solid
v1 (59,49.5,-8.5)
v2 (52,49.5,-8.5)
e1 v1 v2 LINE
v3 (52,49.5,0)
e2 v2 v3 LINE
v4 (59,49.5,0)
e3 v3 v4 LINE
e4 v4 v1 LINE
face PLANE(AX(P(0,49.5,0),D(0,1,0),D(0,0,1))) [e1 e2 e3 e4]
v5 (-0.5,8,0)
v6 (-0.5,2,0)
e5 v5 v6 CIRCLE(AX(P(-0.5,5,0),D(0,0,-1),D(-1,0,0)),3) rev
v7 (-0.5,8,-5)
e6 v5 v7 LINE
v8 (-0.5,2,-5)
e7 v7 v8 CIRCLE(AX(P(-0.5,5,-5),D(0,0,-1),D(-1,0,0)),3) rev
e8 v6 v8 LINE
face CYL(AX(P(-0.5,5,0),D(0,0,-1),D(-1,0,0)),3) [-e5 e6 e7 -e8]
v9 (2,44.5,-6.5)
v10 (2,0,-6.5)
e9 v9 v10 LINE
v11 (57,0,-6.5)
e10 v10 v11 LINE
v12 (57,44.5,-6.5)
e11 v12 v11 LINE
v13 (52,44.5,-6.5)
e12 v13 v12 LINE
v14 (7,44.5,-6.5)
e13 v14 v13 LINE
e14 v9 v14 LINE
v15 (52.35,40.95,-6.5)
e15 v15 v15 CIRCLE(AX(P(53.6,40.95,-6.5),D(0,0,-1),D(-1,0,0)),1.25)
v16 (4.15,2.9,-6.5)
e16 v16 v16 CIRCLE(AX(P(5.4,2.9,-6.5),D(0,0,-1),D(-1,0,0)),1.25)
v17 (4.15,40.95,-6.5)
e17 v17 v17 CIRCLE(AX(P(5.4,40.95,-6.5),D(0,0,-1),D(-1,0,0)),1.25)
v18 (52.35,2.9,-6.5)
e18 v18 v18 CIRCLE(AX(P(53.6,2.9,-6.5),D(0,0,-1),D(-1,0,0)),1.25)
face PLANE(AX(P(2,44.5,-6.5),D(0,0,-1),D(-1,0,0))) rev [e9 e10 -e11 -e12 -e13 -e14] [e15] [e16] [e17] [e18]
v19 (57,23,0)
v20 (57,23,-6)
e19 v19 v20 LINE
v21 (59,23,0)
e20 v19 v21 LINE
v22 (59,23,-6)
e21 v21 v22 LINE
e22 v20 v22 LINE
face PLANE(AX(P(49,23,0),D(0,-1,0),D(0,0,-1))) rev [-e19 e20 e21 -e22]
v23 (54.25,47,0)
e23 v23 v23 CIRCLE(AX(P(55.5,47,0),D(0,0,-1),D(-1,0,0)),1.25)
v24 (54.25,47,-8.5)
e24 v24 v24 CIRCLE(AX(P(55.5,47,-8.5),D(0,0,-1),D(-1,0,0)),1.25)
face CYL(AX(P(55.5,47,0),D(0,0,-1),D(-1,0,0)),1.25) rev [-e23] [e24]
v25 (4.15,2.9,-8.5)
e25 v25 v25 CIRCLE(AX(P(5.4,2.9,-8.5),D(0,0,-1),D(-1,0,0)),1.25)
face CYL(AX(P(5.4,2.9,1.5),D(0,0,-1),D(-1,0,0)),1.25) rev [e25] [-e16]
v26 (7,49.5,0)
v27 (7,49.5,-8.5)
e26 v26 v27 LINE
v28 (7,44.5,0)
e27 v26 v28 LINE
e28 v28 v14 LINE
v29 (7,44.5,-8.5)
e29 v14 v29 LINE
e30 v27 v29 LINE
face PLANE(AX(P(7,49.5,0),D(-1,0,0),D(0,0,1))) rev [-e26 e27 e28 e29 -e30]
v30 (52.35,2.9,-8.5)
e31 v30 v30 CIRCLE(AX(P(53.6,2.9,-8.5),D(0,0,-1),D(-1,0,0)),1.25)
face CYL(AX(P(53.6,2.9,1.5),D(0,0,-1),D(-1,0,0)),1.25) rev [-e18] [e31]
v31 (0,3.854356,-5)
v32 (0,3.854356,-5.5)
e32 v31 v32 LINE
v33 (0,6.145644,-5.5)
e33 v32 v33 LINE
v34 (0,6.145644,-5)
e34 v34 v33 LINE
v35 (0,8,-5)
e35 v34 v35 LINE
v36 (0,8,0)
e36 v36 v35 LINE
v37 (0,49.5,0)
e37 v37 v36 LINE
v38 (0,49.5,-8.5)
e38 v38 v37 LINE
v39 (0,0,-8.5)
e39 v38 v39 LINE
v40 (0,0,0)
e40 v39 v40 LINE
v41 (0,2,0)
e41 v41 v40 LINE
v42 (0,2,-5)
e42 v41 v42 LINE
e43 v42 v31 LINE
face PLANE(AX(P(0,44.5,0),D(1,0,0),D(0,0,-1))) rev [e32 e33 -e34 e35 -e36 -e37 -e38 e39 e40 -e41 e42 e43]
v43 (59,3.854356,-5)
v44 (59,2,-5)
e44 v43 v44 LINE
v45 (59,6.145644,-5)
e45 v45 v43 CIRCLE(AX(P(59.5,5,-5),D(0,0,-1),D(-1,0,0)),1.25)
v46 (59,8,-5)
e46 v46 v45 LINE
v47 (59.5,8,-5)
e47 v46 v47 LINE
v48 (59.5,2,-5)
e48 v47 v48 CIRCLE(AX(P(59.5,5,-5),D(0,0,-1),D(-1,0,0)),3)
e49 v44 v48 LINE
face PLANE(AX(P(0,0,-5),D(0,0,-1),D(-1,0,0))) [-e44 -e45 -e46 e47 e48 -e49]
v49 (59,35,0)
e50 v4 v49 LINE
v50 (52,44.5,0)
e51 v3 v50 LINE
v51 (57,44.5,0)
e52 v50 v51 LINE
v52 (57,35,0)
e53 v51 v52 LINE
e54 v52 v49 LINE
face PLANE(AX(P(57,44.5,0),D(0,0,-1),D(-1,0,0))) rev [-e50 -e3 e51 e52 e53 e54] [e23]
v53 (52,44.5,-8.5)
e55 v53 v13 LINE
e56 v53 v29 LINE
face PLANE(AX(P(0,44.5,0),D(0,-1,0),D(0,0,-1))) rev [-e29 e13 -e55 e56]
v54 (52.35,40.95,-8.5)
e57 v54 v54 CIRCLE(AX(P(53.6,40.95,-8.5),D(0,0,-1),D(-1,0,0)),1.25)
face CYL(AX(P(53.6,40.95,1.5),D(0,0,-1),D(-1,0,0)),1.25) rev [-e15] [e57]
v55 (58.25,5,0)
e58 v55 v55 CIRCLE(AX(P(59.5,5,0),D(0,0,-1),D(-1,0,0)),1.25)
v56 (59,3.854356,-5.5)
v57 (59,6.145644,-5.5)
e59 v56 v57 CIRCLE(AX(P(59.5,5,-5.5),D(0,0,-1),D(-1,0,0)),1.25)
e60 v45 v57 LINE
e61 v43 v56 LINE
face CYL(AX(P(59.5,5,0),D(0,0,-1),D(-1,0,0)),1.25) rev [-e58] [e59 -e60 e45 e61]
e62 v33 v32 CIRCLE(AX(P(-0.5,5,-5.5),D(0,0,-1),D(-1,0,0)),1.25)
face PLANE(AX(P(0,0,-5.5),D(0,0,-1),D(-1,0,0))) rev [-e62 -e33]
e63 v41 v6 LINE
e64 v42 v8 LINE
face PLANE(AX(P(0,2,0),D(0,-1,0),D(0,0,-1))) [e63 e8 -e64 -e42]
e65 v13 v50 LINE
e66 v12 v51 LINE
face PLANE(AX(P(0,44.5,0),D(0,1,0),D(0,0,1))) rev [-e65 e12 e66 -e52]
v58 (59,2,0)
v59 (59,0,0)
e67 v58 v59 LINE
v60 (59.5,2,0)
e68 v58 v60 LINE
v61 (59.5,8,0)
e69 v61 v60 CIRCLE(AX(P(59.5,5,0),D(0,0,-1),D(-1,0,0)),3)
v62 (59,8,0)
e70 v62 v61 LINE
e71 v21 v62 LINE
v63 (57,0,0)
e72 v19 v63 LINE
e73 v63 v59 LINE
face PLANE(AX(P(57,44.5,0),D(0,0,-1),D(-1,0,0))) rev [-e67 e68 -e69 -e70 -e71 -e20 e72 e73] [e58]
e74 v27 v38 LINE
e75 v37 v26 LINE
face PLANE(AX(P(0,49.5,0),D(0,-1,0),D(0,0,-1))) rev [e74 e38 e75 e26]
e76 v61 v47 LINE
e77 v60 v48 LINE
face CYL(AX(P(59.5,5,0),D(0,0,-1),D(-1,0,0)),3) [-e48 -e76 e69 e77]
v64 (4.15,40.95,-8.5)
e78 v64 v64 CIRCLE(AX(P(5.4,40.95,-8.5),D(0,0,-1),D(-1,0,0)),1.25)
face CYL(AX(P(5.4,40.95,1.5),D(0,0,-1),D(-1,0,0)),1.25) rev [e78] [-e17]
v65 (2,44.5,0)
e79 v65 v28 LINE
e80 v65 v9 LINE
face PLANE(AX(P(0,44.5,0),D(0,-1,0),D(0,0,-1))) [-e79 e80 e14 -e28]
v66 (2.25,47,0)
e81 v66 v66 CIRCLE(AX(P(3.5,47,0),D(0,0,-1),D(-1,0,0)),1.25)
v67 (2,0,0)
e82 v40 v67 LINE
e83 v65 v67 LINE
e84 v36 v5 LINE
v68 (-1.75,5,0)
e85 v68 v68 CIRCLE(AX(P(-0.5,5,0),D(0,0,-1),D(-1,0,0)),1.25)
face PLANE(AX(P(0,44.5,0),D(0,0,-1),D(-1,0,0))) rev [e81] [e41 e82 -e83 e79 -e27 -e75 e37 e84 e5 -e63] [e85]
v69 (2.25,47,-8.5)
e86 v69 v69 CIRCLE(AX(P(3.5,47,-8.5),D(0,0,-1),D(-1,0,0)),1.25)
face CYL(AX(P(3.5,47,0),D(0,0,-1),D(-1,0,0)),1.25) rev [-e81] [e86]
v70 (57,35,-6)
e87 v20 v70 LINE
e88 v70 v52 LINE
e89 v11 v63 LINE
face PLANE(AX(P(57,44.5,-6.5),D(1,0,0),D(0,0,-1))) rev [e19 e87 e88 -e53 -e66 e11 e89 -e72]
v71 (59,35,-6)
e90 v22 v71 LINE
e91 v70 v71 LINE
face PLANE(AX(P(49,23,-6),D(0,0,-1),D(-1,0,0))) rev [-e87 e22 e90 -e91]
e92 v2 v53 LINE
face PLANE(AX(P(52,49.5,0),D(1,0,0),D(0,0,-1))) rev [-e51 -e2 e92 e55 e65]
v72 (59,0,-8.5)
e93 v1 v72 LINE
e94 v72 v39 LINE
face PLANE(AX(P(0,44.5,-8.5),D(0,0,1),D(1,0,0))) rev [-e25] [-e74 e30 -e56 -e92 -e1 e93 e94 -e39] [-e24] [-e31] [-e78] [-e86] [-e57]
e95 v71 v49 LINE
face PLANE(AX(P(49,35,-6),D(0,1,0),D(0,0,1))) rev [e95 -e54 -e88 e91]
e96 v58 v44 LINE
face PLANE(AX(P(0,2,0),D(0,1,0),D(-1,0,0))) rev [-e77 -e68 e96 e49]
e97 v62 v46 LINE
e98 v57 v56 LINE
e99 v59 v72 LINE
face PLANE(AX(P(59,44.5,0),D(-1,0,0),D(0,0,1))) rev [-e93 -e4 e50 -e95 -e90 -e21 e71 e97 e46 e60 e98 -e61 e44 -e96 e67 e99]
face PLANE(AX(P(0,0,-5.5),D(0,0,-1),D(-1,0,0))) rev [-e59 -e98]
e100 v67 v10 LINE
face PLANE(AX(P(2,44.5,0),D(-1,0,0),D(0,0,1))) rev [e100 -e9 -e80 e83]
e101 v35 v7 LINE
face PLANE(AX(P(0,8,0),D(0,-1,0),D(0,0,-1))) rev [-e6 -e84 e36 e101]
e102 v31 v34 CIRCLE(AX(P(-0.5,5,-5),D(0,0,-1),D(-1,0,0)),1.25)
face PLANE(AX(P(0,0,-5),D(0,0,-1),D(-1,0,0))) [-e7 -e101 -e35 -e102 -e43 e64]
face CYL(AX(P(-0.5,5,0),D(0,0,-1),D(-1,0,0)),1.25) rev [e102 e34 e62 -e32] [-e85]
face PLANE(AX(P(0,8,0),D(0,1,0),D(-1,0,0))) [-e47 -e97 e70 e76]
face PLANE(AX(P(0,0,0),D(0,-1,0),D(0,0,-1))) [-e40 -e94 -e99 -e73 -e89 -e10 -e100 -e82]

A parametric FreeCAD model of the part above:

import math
import FreeCAD as App
import Part
import Sketcher
Q = App.Units.Quantity

doc = App.newDocument("Part")
body = doc.addObject("PartDesign::Body", "Body")

sketch1 = doc.addObject("Sketcher::SketchObject", "Sketch")
body.addObject(sketch1)
sketch1.AttachmentSupport = (doc.XZ_Plane, [""])
sketch1.MapMode = "FlatFace"
sketch1.addGeometry(Part.LineSegment(App.Vector(0, 0, 0), App.Vector(2, 0, 0)), False)
sketch1.addGeometry(Part.LineSegment(App.Vector(2, 0, 0), App.Vector(2, -6.5, 0)), False)
sketch1.addGeometry(Part.LineSegment(App.Vector(2, -6.5, 0), App.Vector(57, -6.5, 0)), False)
sketch1.addGeometry(Part.LineSegment(App.Vector(57, -6.5, 0), App.Vector(57, 0, 0)), False)
sketch1.addGeometry(Part.LineSegment(App.Vector(57, 0, 0), App.Vector(59, 0, 0)), False)
sketch1.addGeometry(Part.LineSegment(App.Vector(59, 0, 0), App.Vector(59, -8.5, 0)), False)
sketch1.addGeometry(Part.LineSegment(App.Vector(59, -8.5, 0), App.Vector(0, -8.5, 0)), False)
sketch1.addGeometry(Part.LineSegment(App.Vector(0, -8.5, 0), App.Vector(0, 0, 0)), False)
sketch1.addConstraint(Sketcher.Constraint("Coincident", 0, 2, 1, 1))
sketch1.addConstraint(Sketcher.Constraint("Coincident", 1, 2, 2, 1))
sketch1.addConstraint(Sketcher.Constraint("Coincident", 2, 2, 3, 1))
sketch1.addConstraint(Sketcher.Constraint("Coincident", 3, 2, 4, 1))
sketch1.addConstraint(Sketcher.Constraint("Coincident", 4, 2, 5, 1))
sketch1.addConstraint(Sketcher.Constraint("Coincident", 5, 2, 6, 1))
sketch1.addConstraint(Sketcher.Constraint("Coincident", 6, 2, 7, 1))
sketch1.addConstraint(Sketcher.Constraint("Coincident", 7, 2, 0, 1))
sketch1.addConstraint(Sketcher.Constraint("Horizontal", 0))
sketch1.addConstraint(Sketcher.Constraint("Vertical", 1))
sketch1.addConstraint(Sketcher.Constraint("Horizontal", 2))
sketch1.addConstraint(Sketcher.Constraint("Vertical", 3))
sketch1.addConstraint(Sketcher.Constraint("Horizontal", 4))
sketch1.addConstraint(Sketcher.Constraint("Vertical", 5))
sketch1.addConstraint(Sketcher.Constraint("Horizontal", 6))
sketch1.addConstraint(Sketcher.Constraint("Vertical", 7))
sketch1.addConstraint(Sketcher.Constraint("Coincident", 7, 2, -1, 1))
sketch1.addConstraint(Sketcher.Constraint("PointOnObject", 3, 2, -1))
sketch1.addConstraint(Sketcher.Constraint("Equal", 0, 4))
sketch1.addConstraint(Sketcher.Constraint("DistanceX", 0, 1, 0, 2, Q("2 mm")))
sketch1.addConstraint(Sketcher.Constraint("DistanceX", 2, 1, 2, 2, Q("55 mm")))
sketch1.addConstraint(Sketcher.Constraint("DistanceY", 1, 2, 1, 1, Q("6.5 mm")))
sketch1.addConstraint(Sketcher.Constraint("DistanceY", 5, 2, 5, 1, Q("8.5 mm")))
pad1 = doc.addObject("PartDesign::Pad", "Pad")
body.addObject(pad1)
pad1.Profile = sketch1
pad1.Length = 44.5
pad1.Reversed = True

sketch2 = doc.addObject("Sketcher::SketchObject", "Sketch001")
body.addObject(sketch2)
sketch2.AttachmentSupport = (doc.YZ_Plane, [""])
sketch2.MapMode = "FlatFace"
sketch2.AttachmentOffset = App.Placement(App.Vector(0, 0, 59), App.Rotation())
sketch2.addGeometry(Part.LineSegment(App.Vector(35, 0, 0), App.Vector(23, 0, 0)), False)
sketch2.addGeometry(Part.LineSegment(App.Vector(23, 0, 0), App.Vector(23, -6, 0)), False)
sketch2.addGeometry(Part.LineSegment(App.Vector(23, -6, 0), App.Vector(35, -6, 0)), False)
sketch2.addGeometry(Part.LineSegment(App.Vector(35, -6, 0), App.Vector(35, 0, 0)), False)
sketch2.addConstraint(Sketcher.Constraint("Coincident", 0, 2, 1, 1))
sketch2.addConstraint(Sketcher.Constraint("Coincident", 1, 2, 2, 1))
sketch2.addConstraint(Sketcher.Constraint("Coincident", 2, 2, 3, 1))
sketch2.addConstraint(Sketcher.Constraint("Coincident", 3, 2, 0, 1))
sketch2.addConstraint(Sketcher.Constraint("Horizontal", 0))
sketch2.addConstraint(Sketcher.Constraint("Vertical", 1))
sketch2.addConstraint(Sketcher.Constraint("Horizontal", 2))
sketch2.addConstraint(Sketcher.Constraint("Vertical", 3))
sketch2.addConstraint(Sketcher.Constraint("PointOnObject", 0, 2, -1))
sketch2.addConstraint(Sketcher.Constraint("DistanceX", 0, 2, 0, 1, Q("12 mm")))
sketch2.addConstraint(Sketcher.Constraint("DistanceY", 1, 2, 1, 1, Q("6 mm")))
sketch2.addConstraint(Sketcher.Constraint("DistanceX", -1, 1, 0, 2, Q("23 mm")))
pocket1 = doc.addObject("PartDesign::Pocket", "Pocket")
body.addObject(pocket1)
pocket1.Profile = sketch2
pocket1.Length = 10

sketch3 = doc.addObject("Sketcher::SketchObject", "Sketch002")
body.addObject(sketch3)
sketch3.AttachmentSupport = (doc.XY_Plane, [""])
sketch3.MapMode = "FlatFace"
sketch3.AttachmentOffset = App.Placement(App.Vector(0, 0, -8.5), App.Rotation())
sketch3.addGeometry(Part.LineSegment(App.Vector(59, 6.1, 0), App.Vector(59, 8, 0)), False)
sketch3.addGeometry(Part.LineSegment(App.Vector(59, 8, 0), App.Vector(59.5, 8, 0)), False)
sketch3.addGeometry(Part.ArcOfCircle(Part.Circle(App.Vector(59.5, 5, 0), App.Vector(0, 0, 1), 3), math.radians(-90), math.radians(90)), False)
sketch3.addGeometry(Part.LineSegment(App.Vector(59.5, 2, 0), App.Vector(59, 2, 0)), False)
sketch3.addGeometry(Part.LineSegment(App.Vector(59, 2, 0), App.Vector(59, 3.9, 0)), False)
sketch3.addGeometry(Part.ArcOfCircle(Part.Circle(App.Vector(59.5, 5, 0), App.Vector(0, 0, 1), 1.2), math.radians(-114), math.radians(114)), False)
sketch3.addGeometry(Part.LineSegment(App.Vector(-0.5, 8, 0), App.Vector(0, 8, 0)), False)
sketch3.addGeometry(Part.LineSegment(App.Vector(0, 8, 0), App.Vector(0, 6.1, 0)), False)
sketch3.addGeometry(Part.ArcOfCircle(Part.Circle(App.Vector(-0.5, 5, 0), App.Vector(0, 0, 1), 1.2), math.radians(66), math.radians(180)), False)
sketch3.addGeometry(Part.ArcOfCircle(Part.Circle(App.Vector(-0.5, 5, 0), App.Vector(0, 0, 1), 1.2), math.radians(180), math.radians(294)), False)
sketch3.addGeometry(Part.LineSegment(App.Vector(0, 3.9, 0), App.Vector(0, 2, 0)), False)
sketch3.addGeometry(Part.LineSegment(App.Vector(0, 2, 0), App.Vector(-0.5, 2, 0)), False)
sketch3.addGeometry(Part.ArcOfCircle(Part.Circle(App.Vector(-0.5, 5, 0), App.Vector(0, 0, 1), 3), math.radians(90), math.radians(270)), False)
sketch3.addConstraint(Sketcher.Constraint("Coincident", 0, 2, 1, 1))
sketch3.addConstraint(Sketcher.Constraint("Tangent", 1, 2, 2, 2))
sketch3.addConstraint(Sketcher.Constraint("Tangent", 2, 1, 3, 1))
sketch3.addConstraint(Sketcher.Constraint("Coincident", 3, 2, 4, 1))
sketch3.addConstraint(Sketcher.Constraint("Coincident", 4, 2, 5, 1))
sketch3.addConstraint(Sketcher.Constraint("Coincident", 5, 2, 0, 1))
sketch3.addConstraint(Sketcher.Constraint("Coincident", 6, 2, 7, 1))
sketch3.addConstraint(Sketcher.Constraint("Coincident", 7, 2, 8, 1))
sketch3.addConstraint(Sketcher.Constraint("Tangent", 8, 2, 9, 1))
sketch3.addConstraint(Sketcher.Constraint("Coincident", 9, 2, 10, 1))
sketch3.addConstraint(Sketcher.Constraint("Coincident", 10, 2, 11, 1))
sketch3.addConstraint(Sketcher.Constraint("Tangent", 11, 2, 12, 2))
sketch3.addConstraint(Sketcher.Constraint("Tangent", 12, 1, 6, 1))
sketch3.addConstraint(Sketcher.Constraint("Vertical", 0))
sketch3.addConstraint(Sketcher.Constraint("Horizontal", 1))
sketch3.addConstraint(Sketcher.Constraint("Horizontal", 3))
sketch3.addConstraint(Sketcher.Constraint("Vertical", 4))
sketch3.addConstraint(Sketcher.Constraint("Horizontal", 6))
sketch3.addConstraint(Sketcher.Constraint("Vertical", 7))
sketch3.addConstraint(Sketcher.Constraint("Vertical", 10))
sketch3.addConstraint(Sketcher.Constraint("Horizontal", 11))
sketch3.addConstraint(Sketcher.Constraint("Coincident", 5, 3, 2, 3))
sketch3.addConstraint(Sketcher.Constraint("Coincident", 12, 3, 8, 3))
sketch3.addConstraint(Sketcher.Constraint("Equal", 5, 8))
sketch3.addConstraint(Sketcher.Constraint("Equal", 8, 9))
sketch3.addConstraint(Sketcher.Constraint("Equal", 2, 12))
sketch3.addConstraint(Sketcher.Constraint("PointOnObject", 6, 2, -2))
sketch3.addConstraint(Sketcher.Constraint("PointOnObject", 9, 2, -2))
sketch3.addConstraint(Sketcher.Constraint("Horizontal", 5, 3, 8, 3))
sketch3.addConstraint(Sketcher.Constraint("Horizontal", 5, 2, 7, 2))
sketch3.addConstraint(Sketcher.Constraint("Horizontal", 12, 3, 8, 2))
sketch3.addConstraint(Sketcher.Constraint("Horizontal", 4, 2, 9, 2))
sketch3.addConstraint(Sketcher.Constraint("Radius", 2, Q("3 mm")))
sketch3.addConstraint(Sketcher.Constraint("Radius", 5, Q("1.25 mm")))
sketch3.addConstraint(Sketcher.Constraint("DistanceX", 1, 1, 1, 2, Q("0.5 mm")))
sketch3.addConstraint(Sketcher.Constraint("DistanceY", -1, 1, 2, 3, Q("5 mm")))
sketch3.addConstraint(Sketcher.Constraint("DistanceX", -1, 1, 0, 2, Q("59 mm")))
pad2 = doc.addObject("PartDesign::Pad", "Pad001")
body.addObject(pad2)
pad2.Profile = sketch3
pad2.Length = 8.5

sketch4 = doc.addObject("Sketcher::SketchObject", "Sketch003")
body.addObject(sketch4)
sketch4.AttachmentSupport = (doc.XY_Plane, [""])
sketch4.MapMode = "FlatFace"
sketch4.AttachmentOffset = App.Placement(App.Vector(0, 0, -8.5), App.Rotation())
sketch4.addGeometry(Part.ArcOfCircle(Part.Circle(App.Vector(59.5, 5, 0), App.Vector(0, 0, 1), 1.3), math.radians(114), math.radians(180)), False)
sketch4.addGeometry(Part.LineSegment(App.Vector(59, 6.1, 0), App.Vector(59, 3.9, 0)), False)
sketch4.addGeometry(Part.ArcOfCircle(Part.Circle(App.Vector(59.5, 5, 0), App.Vector(0, 0, 1), 1.3), math.radians(180), math.radians(246)), False)
sketch4.addGeometry(Part.LineSegment(App.Vector(59, 3.9, 0), App.Vector(59, 6.1, 0)), False)
sketch4.addGeometry(Part.ArcOfCircle(Part.Circle(App.Vector(59.5, 5, 0), App.Vector(0, 0, 1), 1.2), math.radians(-114), math.radians(114)), False)
sketch4.addGeometry(Part.ArcOfCircle(Part.Circle(App.Vector(-0.5, 5, 0), App.Vector(0, 0, 1), 1.2), math.radians(66), math.radians(180)), False)
sketch4.addGeometry(Part.LineSegment(App.Vector(0, 6.1, 0), App.Vector(0, 3.9, 0)), False)
sketch4.addGeometry(Part.ArcOfCircle(Part.Circle(App.Vector(-0.5, 5, 0), App.Vector(0, 0, 1), 1.2), math.radians(180), math.radians(294)), False)
sketch4.addGeometry(Part.LineSegment(App.Vector(0, 3.9, 0), App.Vector(0, 6.1, 0)), False)
sketch4.addGeometry(Part.ArcOfCircle(Part.Circle(App.Vector(-0.5, 5, 0), App.Vector(0, 0, 1), 1.2), math.radians(-66), math.radians(66)), False)
sketch4.addConstraint(Sketcher.Constraint("Coincident", 0, 1, 1, 1))
sketch4.addConstraint(Sketcher.Constraint("Coincident", 1, 2, 2, 2))
sketch4.addConstraint(Sketcher.Constraint("Tangent", 2, 1, 0, 2))
sketch4.addConstraint(Sketcher.Constraint("Coincident", 3, 1, 4, 1))
sketch4.addConstraint(Sketcher.Constraint("Coincident", 4, 2, 3, 2))
sketch4.addConstraint(Sketcher.Constraint("Coincident", 5, 1, 6, 1))
sketch4.addConstraint(Sketcher.Constraint("Coincident", 6, 2, 7, 2))
sketch4.addConstraint(Sketcher.Constraint("Tangent", 7, 1, 5, 2))
sketch4.addConstraint(Sketcher.Constraint("Coincident", 8, 1, 9, 1))
sketch4.addConstraint(Sketcher.Constraint("Coincident", 9, 2, 8, 2))
sketch4.addConstraint(Sketcher.Constraint("Vertical", 1))
sketch4.addConstraint(Sketcher.Constraint("Vertical", 3))
sketch4.addConstraint(Sketcher.Constraint("Vertical", 6))
sketch4.addConstraint(Sketcher.Constraint("Vertical", 8))
sketch4.addConstraint(Sketcher.Constraint("Coincident", 4, 3, 0, 3))
sketch4.addConstraint(Sketcher.Constraint("Coincident", 9, 3, 5, 3))
sketch4.addConstraint(Sketcher.Constraint("Coincident", 3, 1, 1, 2))
sketch4.addConstraint(Sketcher.Constraint("Coincident", 8, 1, 6, 2))
sketch4.addConstraint(Sketcher.Constraint("Equal", 0, 2))
sketch4.addConstraint(Sketcher.Constraint("Equal", 4, 5))
sketch4.addConstraint(Sketcher.Constraint("Equal", 5, 7))
sketch4.addConstraint(Sketcher.Constraint("PointOnObject", 5, 1, -2))
sketch4.addConstraint(Sketcher.Constraint("Horizontal", 4, 3, 5, 3))
sketch4.addConstraint(Sketcher.Constraint("Horizontal", 9, 3, 2, 1))
sketch4.addConstraint(Sketcher.Constraint("Horizontal", 4, 2, 5, 1))
sketch4.addConstraint(Sketcher.Constraint("Horizontal", 2, 1, 7, 1))
sketch4.addConstraint(Sketcher.Constraint("Radius", 0, Q("1.25 mm")))
sketch4.addConstraint(Sketcher.Constraint("DistanceY", -1, 1, 0, 3, Q("5 mm")))
sketch4.addConstraint(Sketcher.Constraint("DistanceX", -1, 1, 0, 1, Q("59 mm")))
sketch4.addConstraint(Sketcher.Constraint("DistanceX", 5, 3, 4, 3, Q("60 mm")))
pocket2 = doc.addObject("PartDesign::Pocket", "Pocket001")
body.addObject(pocket2)
pocket2.Profile = sketch4
pocket2.Length = 11
pocket2.Reversed = True

sketch5 = doc.addObject("Sketcher::SketchObject", "Sketch004")
body.addObject(sketch5)
sketch5.AttachmentSupport = (doc.XZ_Plane, [""])
sketch5.MapMode = "FlatFace"
sketch5.AttachmentOffset = App.Placement(App.Vector(0, 0, -44.5), App.Rotation())
sketch5.addGeometry(Part.LineSegment(App.Vector(0, -8, 0), App.Vector(0, 0, 0)), False)
sketch5.addGeometry(Part.LineSegment(App.Vector(0, 0, 0), App.Vector(7, 0, 0)), False)
sketch5.addGeometry(Part.LineSegment(App.Vector(7, 0, 0), App.Vector(7, -8, 0)), False)
sketch5.addGeometry(Part.LineSegment(App.Vector(7, -8, 0), App.Vector(0, -8, 0)), False)
sketch5.addGeometry(Part.LineSegment(App.Vector(52, -8, 0), App.Vector(52, 0, 0)), False)
sketch5.addGeometry(Part.LineSegment(App.Vector(52, 0, 0), App.Vector(59, 0, 0)), False)
sketch5.addGeometry(Part.LineSegment(App.Vector(59, 0, 0), App.Vector(59, -8, 0)), False)
sketch5.addGeometry(Part.LineSegment(App.Vector(59, -8, 0), App.Vector(52, -8, 0)), False)
sketch5.addConstraint(Sketcher.Constraint("Coincident", 0, 2, 1, 1))
sketch5.addConstraint(Sketcher.Constraint("Coincident", 1, 2, 2, 1))
sketch5.addConstraint(Sketcher.Constraint("Coincident", 2, 2, 3, 1))
sketch5.addConstraint(Sketcher.Constraint("Coincident", 3, 2, 0, 1))
sketch5.addConstraint(Sketcher.Constraint("Coincident", 4, 2, 5, 1))
sketch5.addConstraint(Sketcher.Constraint("Coincident", 5, 2, 6, 1))
sketch5.addConstraint(Sketcher.Constraint("Coincident", 6, 2, 7, 1))
sketch5.addConstraint(Sketcher.Constraint("Coincident", 7, 2, 4, 1))
sketch5.addConstraint(Sketcher.Constraint("Vertical", 0))
sketch5.addConstraint(Sketcher.Constraint("Horizontal", 1))
sketch5.addConstraint(Sketcher.Constraint("Vertical", 2))
sketch5.addConstraint(Sketcher.Constraint("Horizontal", 3))
sketch5.addConstraint(Sketcher.Constraint("Vertical", 4))
sketch5.addConstraint(Sketcher.Constraint("Horizontal", 5))
sketch5.addConstraint(Sketcher.Constraint("Vertical", 6))
sketch5.addConstraint(Sketcher.Constraint("Horizontal", 7))
sketch5.addConstraint(Sketcher.Constraint("Coincident", 0, 2, -1, 1))
sketch5.addConstraint(Sketcher.Constraint("PointOnObject", 4, 2, -1))
sketch5.addConstraint(Sketcher.Constraint("Horizontal", 3, 2, 6, 2))
sketch5.addConstraint(Sketcher.Constraint("Equal", 3, 5))
sketch5.addConstraint(Sketcher.Constraint("DistanceX", 1, 1, 1, 2, Q("7 mm")))
sketch5.addConstraint(Sketcher.Constraint("DistanceY", 0, 1, 0, 2, Q("8.5 mm")))
sketch5.addConstraint(Sketcher.Constraint("DistanceX", -1, 1, 4, 2, Q("52 mm")))
pad3 = doc.addObject("PartDesign::Pad", "Pad002")
body.addObject(pad3)
pad3.Profile = sketch5
pad3.Length = 5
pad3.Reversed = True

sketch6 = doc.addObject("Sketcher::SketchObject", "Sketch005")
body.addObject(sketch6)
sketch6.AttachmentSupport = (doc.XY_Plane, [""])
sketch6.MapMode = "FlatFace"
sketch6.AttachmentOffset = App.Placement(App.Vector(0, 0, -8.5), App.Rotation())
sketch6.addGeometry(Part.Circle(App.Vector(55.5, 47, 0), App.Vector(0, 0, 1), 1.2), False)
sketch6.addGeometry(Part.Circle(App.Vector(3.5, 47, 0), App.Vector(0, 0, 1), 1.2), False)
sketch6.addConstraint(Sketcher.Constraint("Equal", 0, 1))
sketch6.addConstraint(Sketcher.Constraint("Horizontal", 0, 3, 1, 3))
sketch6.addConstraint(Sketcher.Constraint("Diameter", 0, Q("2.5 mm")))
sketch6.addConstraint(Sketcher.Constraint("DistanceY", -1, 1, 0, 3, Q("47 mm")))
sketch6.addConstraint(Sketcher.Constraint("DistanceX", 1, 3, 0, 3, Q("52 mm")))
sketch6.addConstraint(Sketcher.Constraint("DistanceX", -1, 1, 0, 3, Q("55.5 mm")))
pocket3 = doc.addObject("PartDesign::Pocket", "Pocket002")
body.addObject(pocket3)
pocket3.Profile = sketch6
pocket3.Type = "ThroughAll"
pocket3.Reversed = True

sketch7 = doc.addObject("Sketcher::SketchObject", "Sketch006")
body.addObject(sketch7)
sketch7.AttachmentSupport = (doc.XY_Plane, [""])
sketch7.MapMode = "FlatFace"
sketch7.AttachmentOffset = App.Placement(App.Vector(0, 0, -8.5), App.Rotation())
sketch7.addGeometry(Part.Circle(App.Vector(53.6, 2.9, 0), App.Vector(0, 0, 1), 1.2), False)
sketch7.addGeometry(Part.Circle(App.Vector(5.4, 2.9, 0), App.Vector(0, 0, 1), 1.2), False)
sketch7.addGeometry(Part.Circle(App.Vector(53.6, 41, 0), App.Vector(0, 0, 1), 1.2), False)
sketch7.addGeometry(Part.Circle(App.Vector(5.4, 41, 0), App.Vector(0, 0, 1), 1.2), False)
sketch7.addConstraint(Sketcher.Constraint("Equal", 0, 1))
sketch7.addConstraint(Sketcher.Constraint("Equal", 1, 2))
sketch7.addConstraint(Sketcher.Constraint("Equal", 2, 3))
sketch7.addConstraint(Sketcher.Constraint("Horizontal", 0, 3, 1, 3))
sketch7.addConstraint(Sketcher.Constraint("Horizontal", 2, 3, 3, 3))
sketch7.addConstraint(Sketcher.Constraint("Vertical", 0, 3, 2, 3))
sketch7.addConstraint(Sketcher.Constraint("Vertical", 1, 3, 3, 3))
sketch7.addConstraint(Sketcher.Constraint("Diameter", 0, Q("2.5 mm")))
sketch7.addConstraint(Sketcher.Constraint("DistanceX", -1, 1, 0, 3, Q("53.6 mm")))
sketch7.addConstraint(Sketcher.Constraint("DistanceY", -1, 1, 0, 3, Q("2.9 mm")))
sketch7.addConstraint(Sketcher.Constraint("DistanceX", -1, 1, 1, 3, Q("5.4 mm")))
sketch7.addConstraint(Sketcher.Constraint("DistanceY", -1, 1, 2, 3, Q("40.95 mm")))
pocket4 = doc.addObject("PartDesign::Pocket", "Pocket003")
body.addObject(pocket4)
pocket4.Profile = sketch7
pocket4.Length = 10
pocket4.Reversed = True

sketch8 = doc.addObject("Sketcher::SketchObject", "Sketch007")
body.addObject(sketch8)
sketch8.AttachmentSupport = (doc.XY_Plane, [""])
sketch8.MapMode = "FlatFace"
sketch8.AttachmentOffset = App.Placement(App.Vector(0, 0, -8.5), App.Rotation())
sketch8.addGeometry(Part.LineSegment(App.Vector(59, 6.1, 0), App.Vector(59, 8, 0)), False)
sketch8.addGeometry(Part.LineSegment(App.Vector(59, 8, 0), App.Vector(59.5, 8, 0)), False)
sketch8.addGeometry(Part.ArcOfCircle(Part.Circle(App.Vector(59.5, 5, 0), App.Vector(0, 0, 1), 3), math.radians(-90), math.radians(90)), False)
sketch8.addGeometry(Part.LineSegment(App.Vector(59.5, 2, 0), App.Vector(59, 2, 0)), False)
sketch8.addGeometry(Part.LineSegment(App.Vector(59, 2, 0), App.Vector(59, 3.9, 0)), False)
sketch8.addGeometry(Part.ArcOfCircle(Part.Circle(App.Vector(59.5, 5, 0), App.Vector(0, 0, 1), 1.2), math.radians(-114), math.radians(114)), False)
sketch8.addGeometry(Part.LineSegment(App.Vector(-0.5, 8, 0), App.Vector(0, 8, 0)), False)
sketch8.addGeometry(Part.LineSegment(App.Vector(0, 8, 0), App.Vector(0, 6.1, 0)), False)
sketch8.addGeometry(Part.ArcOfCircle(Part.Circle(App.Vector(-0.5, 5, 0), App.Vector(0, 0, 1), 1.2), math.radians(66), math.radians(180)), False)
sketch8.addGeometry(Part.ArcOfCircle(Part.Circle(App.Vector(-0.5, 5, 0), App.Vector(0, 0, 1), 1.2), math.radians(180), math.radians(294)), False)
sketch8.addGeometry(Part.LineSegment(App.Vector(0, 3.9, 0), App.Vector(0, 2, 0)), False)
sketch8.addGeometry(Part.LineSegment(App.Vector(0, 2, 0), App.Vector(-0.5, 2, 0)), False)
sketch8.addGeometry(Part.ArcOfCircle(Part.Circle(App.Vector(-0.5, 5, 0), App.Vector(0, 0, 1), 3), math.radians(90), math.radians(270)), False)
sketch8.addConstraint(Sketcher.Constraint("Coincident", 0, 2, 1, 1))
sketch8.addConstraint(Sketcher.Constraint("Tangent", 1, 2, 2, 2))
sketch8.addConstraint(Sketcher.Constraint("Tangent", 2, 1, 3, 1))
sketch8.addConstraint(Sketcher.Constraint("Coincident", 3, 2, 4, 1))
sketch8.addConstraint(Sketcher.Constraint("Coincident", 4, 2, 5, 1))
sketch8.addConstraint(Sketcher.Constraint("Coincident", 5, 2, 0, 1))
sketch8.addConstraint(Sketcher.Constraint("Coincident", 6, 2, 7, 1))
sketch8.addConstraint(Sketcher.Constraint("Coincident", 7, 2, 8, 1))
sketch8.addConstraint(Sketcher.Constraint("Tangent", 8, 2, 9, 1))
sketch8.addConstraint(Sketcher.Constraint("Coincident", 9, 2, 10, 1))
sketch8.addConstraint(Sketcher.Constraint("Coincident", 10, 2, 11, 1))
sketch8.addConstraint(Sketcher.Constraint("Tangent", 11, 2, 12, 2))
sketch8.addConstraint(Sketcher.Constraint("Tangent", 12, 1, 6, 1))
sketch8.addConstraint(Sketcher.Constraint("Vertical", 0))
sketch8.addConstraint(Sketcher.Constraint("Horizontal", 1))
sketch8.addConstraint(Sketcher.Constraint("Horizontal", 3))
sketch8.addConstraint(Sketcher.Constraint("Vertical", 4))
sketch8.addConstraint(Sketcher.Constraint("Horizontal", 6))
sketch8.addConstraint(Sketcher.Constraint("Vertical", 7))
sketch8.addConstraint(Sketcher.Constraint("Vertical", 10))
sketch8.addConstraint(Sketcher.Constraint("Horizontal", 11))
sketch8.addConstraint(Sketcher.Constraint("Coincident", 5, 3, 2, 3))
sketch8.addConstraint(Sketcher.Constraint("Coincident", 12, 3, 8, 3))
sketch8.addConstraint(Sketcher.Constraint("Equal", 5, 8))
sketch8.addConstraint(Sketcher.Constraint("Equal", 8, 9))
sketch8.addConstraint(Sketcher.Constraint("Equal", 2, 12))
sketch8.addConstraint(Sketcher.Constraint("PointOnObject", 6, 2, -2))
sketch8.addConstraint(Sketcher.Constraint("PointOnObject", 9, 2, -2))
sketch8.addConstraint(Sketcher.Constraint("Horizontal", 5, 3, 8, 3))
sketch8.addConstraint(Sketcher.Constraint("Horizontal", 5, 2, 7, 2))
sketch8.addConstraint(Sketcher.Constraint("Horizontal", 12, 3, 8, 2))
sketch8.addConstraint(Sketcher.Constraint("Horizontal", 4, 2, 9, 2))
sketch8.addConstraint(Sketcher.Constraint("Radius", 2, Q("3 mm")))
sketch8.addConstraint(Sketcher.Constraint("Radius", 5, Q("1.25 mm")))
sketch8.addConstraint(Sketcher.Constraint("DistanceX", 1, 1, 1, 2, Q("0.5 mm")))
sketch8.addConstraint(Sketcher.Constraint("DistanceY", -1, 1, 2, 3, Q("5 mm")))
sketch8.addConstraint(Sketcher.Constraint("DistanceX", -1, 1, 0, 2, Q("59 mm")))
pocket5 = doc.addObject("PartDesign::Pocket", "Pocket004")
body.addObject(pocket5)
pocket5.Profile = sketch8
pocket5.Length = 3.5
pocket5.Reversed = True

sketch9 = doc.addObject("Sketcher::SketchObject", "Sketch008")
body.addObject(sketch9)
sketch9.AttachmentSupport = (doc.XY_Plane, [""])
sketch9.MapMode = "FlatFace"
sketch9.AttachmentOffset = App.Placement(App.Vector(0, 0, -8.5), App.Rotation())
sketch9.addGeometry(Part.LineSegment(App.Vector(0, 3.9, 0), App.Vector(0, 6.1, 0)), False)
sketch9.addGeometry(Part.ArcOfCircle(Part.Circle(App.Vector(-0.5, 5, 0), App.Vector(0, 0, 1), 1.2), math.radians(-66), math.radians(66)), False)
sketch9.addGeometry(Part.ArcOfCircle(Part.Circle(App.Vector(59.5, 5, 0), App.Vector(0, 0, 1), 1.3), math.radians(114), math.radians(180)), False)
sketch9.addGeometry(Part.LineSegment(App.Vector(59, 6.1, 0), App.Vector(59, 3.9, 0)), False)
sketch9.addGeometry(Part.ArcOfCircle(Part.Circle(App.Vector(59.5, 5, 0), App.Vector(0, 0, 1), 1.3), math.radians(180), math.radians(246)), False)
sketch9.addConstraint(Sketcher.Constraint("Coincident", 0, 1, 1, 1))
sketch9.addConstraint(Sketcher.Constraint("Coincident", 1, 2, 0, 2))
sketch9.addConstraint(Sketcher.Constraint("Coincident", 2, 1, 3, 1))
sketch9.addConstraint(Sketcher.Constraint("Coincident", 3, 2, 4, 2))
sketch9.addConstraint(Sketcher.Constraint("Tangent", 4, 1, 2, 2))
sketch9.addConstraint(Sketcher.Constraint("Vertical", 0))
sketch9.addConstraint(Sketcher.Constraint("Vertical", 3))
sketch9.addConstraint(Sketcher.Constraint("Equal", 1, 2))
sketch9.addConstraint(Sketcher.Constraint("Equal", 2, 4))
sketch9.addConstraint(Sketcher.Constraint("PointOnObject", 0, 1, -2))
sketch9.addConstraint(Sketcher.Constraint("Horizontal", 1, 3, 2, 3))
sketch9.addConstraint(Sketcher.Constraint("Horizontal", 1, 2, 2, 1))
sketch9.addConstraint(Sketcher.Constraint("Horizontal", 2, 3, 4, 1))
sketch9.addConstraint(Sketcher.Constraint("Radius", 1, Q("1.25 mm")))
sketch9.addConstraint(Sketcher.Constraint("DistanceY", -1, 1, 1, 3, Q("5 mm")))
sketch9.addConstraint(Sketcher.Constraint("DistanceX", -1, 1, 2, 1, Q("59 mm")))
sketch9.addConstraint(Sketcher.Constraint("DistanceX", 1, 3, 2, 3, Q("60 mm")))
pad4 = doc.addObject("PartDesign::Pad", "Pad003")
body.addObject(pad4)
pad4.Profile = sketch9
pad4.Length = 3

doc.recompute()
